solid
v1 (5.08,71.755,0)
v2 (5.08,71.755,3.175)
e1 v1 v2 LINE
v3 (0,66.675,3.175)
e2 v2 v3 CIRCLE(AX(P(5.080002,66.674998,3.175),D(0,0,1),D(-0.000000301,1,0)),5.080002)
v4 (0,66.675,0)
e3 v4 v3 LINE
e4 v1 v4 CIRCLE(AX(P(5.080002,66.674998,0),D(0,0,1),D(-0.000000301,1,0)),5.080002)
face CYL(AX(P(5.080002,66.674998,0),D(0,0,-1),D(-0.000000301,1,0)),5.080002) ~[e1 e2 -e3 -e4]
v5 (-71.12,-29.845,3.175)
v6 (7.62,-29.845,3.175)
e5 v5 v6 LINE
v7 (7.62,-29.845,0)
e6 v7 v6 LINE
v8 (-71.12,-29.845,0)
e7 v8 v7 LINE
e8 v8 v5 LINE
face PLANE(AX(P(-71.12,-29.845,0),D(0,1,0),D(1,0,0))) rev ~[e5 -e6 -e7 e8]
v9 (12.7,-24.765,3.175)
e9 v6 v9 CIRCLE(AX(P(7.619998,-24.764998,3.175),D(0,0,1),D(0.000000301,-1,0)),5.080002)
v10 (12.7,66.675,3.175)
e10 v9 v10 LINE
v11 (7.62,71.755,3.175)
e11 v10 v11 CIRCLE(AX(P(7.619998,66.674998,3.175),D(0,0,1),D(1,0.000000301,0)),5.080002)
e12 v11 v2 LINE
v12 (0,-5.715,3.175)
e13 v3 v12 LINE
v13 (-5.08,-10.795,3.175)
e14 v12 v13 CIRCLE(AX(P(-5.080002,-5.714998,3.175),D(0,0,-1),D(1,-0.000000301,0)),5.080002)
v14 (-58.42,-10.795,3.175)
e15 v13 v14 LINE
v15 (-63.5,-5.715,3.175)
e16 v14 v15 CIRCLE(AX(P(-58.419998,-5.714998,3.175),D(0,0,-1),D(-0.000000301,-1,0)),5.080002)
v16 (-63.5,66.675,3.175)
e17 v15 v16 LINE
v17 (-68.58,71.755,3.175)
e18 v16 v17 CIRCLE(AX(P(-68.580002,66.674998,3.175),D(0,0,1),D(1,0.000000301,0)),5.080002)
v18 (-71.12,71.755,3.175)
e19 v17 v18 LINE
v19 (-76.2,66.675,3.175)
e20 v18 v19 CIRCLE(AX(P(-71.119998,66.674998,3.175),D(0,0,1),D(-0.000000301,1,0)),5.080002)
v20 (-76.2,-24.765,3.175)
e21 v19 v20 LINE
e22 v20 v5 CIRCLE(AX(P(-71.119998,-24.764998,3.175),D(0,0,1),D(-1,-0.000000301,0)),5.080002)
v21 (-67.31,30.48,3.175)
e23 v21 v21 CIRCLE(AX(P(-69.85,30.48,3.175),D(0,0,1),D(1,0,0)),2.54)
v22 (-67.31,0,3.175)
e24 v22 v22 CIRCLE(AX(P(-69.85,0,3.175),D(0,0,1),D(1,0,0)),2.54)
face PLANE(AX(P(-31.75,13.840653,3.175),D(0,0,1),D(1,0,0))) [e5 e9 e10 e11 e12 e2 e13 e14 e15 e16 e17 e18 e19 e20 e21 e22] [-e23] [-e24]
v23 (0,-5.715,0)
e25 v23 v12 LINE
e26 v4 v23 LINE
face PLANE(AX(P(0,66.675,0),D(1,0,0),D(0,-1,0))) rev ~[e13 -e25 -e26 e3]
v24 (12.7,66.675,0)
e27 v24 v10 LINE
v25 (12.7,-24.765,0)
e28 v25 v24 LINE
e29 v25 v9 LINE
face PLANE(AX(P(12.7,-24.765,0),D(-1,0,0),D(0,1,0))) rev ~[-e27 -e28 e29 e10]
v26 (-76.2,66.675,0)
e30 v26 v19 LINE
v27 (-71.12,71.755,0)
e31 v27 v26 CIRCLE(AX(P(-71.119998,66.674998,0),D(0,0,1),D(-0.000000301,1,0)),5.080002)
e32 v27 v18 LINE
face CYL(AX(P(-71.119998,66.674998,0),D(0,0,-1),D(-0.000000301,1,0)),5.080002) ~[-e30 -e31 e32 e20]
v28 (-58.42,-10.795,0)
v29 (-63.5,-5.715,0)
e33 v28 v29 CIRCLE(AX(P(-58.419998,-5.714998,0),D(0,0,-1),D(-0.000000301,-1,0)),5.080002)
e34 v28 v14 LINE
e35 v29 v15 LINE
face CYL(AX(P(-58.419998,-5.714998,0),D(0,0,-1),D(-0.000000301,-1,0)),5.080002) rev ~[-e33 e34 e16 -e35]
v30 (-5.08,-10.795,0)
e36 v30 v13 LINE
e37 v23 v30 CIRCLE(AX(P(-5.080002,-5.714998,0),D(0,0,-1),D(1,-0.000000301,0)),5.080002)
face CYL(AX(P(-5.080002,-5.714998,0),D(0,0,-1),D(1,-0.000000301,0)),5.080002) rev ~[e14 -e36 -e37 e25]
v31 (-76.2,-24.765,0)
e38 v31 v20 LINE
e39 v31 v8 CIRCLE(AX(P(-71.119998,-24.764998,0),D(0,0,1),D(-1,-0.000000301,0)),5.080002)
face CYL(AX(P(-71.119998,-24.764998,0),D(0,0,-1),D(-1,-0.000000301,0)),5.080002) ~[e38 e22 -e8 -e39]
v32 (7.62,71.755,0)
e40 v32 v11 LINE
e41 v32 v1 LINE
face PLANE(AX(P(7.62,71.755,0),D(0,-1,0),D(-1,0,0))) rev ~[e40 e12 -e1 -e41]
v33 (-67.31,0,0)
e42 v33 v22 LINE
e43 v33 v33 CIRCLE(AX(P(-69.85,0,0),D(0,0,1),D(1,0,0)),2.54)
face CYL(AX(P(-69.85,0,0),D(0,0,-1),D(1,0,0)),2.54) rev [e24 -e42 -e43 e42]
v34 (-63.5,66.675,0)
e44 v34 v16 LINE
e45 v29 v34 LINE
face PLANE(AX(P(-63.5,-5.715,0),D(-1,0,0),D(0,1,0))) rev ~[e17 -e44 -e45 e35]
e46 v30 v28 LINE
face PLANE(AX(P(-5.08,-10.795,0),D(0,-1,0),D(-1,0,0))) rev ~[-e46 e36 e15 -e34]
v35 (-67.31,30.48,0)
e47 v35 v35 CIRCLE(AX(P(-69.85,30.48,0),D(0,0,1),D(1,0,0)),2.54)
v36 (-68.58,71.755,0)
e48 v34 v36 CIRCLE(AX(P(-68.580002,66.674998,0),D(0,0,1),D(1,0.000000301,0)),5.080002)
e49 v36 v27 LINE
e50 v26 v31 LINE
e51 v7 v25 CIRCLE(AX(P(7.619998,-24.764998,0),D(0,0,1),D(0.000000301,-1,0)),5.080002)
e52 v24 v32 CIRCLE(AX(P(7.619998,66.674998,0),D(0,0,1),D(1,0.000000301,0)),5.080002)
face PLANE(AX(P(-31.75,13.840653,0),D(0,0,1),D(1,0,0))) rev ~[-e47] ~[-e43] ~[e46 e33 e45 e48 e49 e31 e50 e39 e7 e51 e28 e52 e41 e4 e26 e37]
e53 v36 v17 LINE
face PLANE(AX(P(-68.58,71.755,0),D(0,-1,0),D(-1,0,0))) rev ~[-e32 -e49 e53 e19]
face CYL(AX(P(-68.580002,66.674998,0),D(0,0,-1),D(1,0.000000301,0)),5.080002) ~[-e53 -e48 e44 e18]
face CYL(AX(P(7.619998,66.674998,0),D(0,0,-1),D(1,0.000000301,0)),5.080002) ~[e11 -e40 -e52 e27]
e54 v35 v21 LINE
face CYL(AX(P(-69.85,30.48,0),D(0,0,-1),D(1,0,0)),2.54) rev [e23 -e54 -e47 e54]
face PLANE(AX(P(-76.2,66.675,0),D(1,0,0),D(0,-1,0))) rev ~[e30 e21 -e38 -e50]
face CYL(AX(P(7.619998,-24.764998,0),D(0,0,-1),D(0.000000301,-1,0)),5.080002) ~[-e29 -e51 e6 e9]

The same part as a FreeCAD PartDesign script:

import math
import FreeCAD as App
import Part
import Sketcher
from FreeCAD import Vector
Q = App.Units.Quantity

doc = App.newDocument("Part")
body = doc.addObject("PartDesign::Body", "Body")

# Sketch on XY plane
sketch1 = body.newObject("Sketcher::SketchObject", "Sketch")
sketch1.AttachmentSupport = (doc.getObject("XY_Plane"), [""])
sketch1.MapMode = "FlatFace"
sketch1.addGeometry([
    Part.LineSegment(Vector(-68.58, 71.755, 0), Vector(-71.12, 71.755, 0)),  # 0
    Part.ArcOfCircle(Part.Circle(Vector(-71.119998, 66.674998, 0), Vector(0, 0, 1), 5.080002), math.radians(90.000017), math.radians(179.999983)),  # 1
    Part.LineSegment(Vector(-76.2, 66.675, 0), Vector(-76.2, -24.765, 0)),  # 2
    Part.ArcOfCircle(Part.Circle(Vector(-71.119998, -24.764998, 0), Vector(0, 0, 1), 5.080002), math.radians(-179.999983), math.radians(-90.000017)),  # 3
    Part.LineSegment(Vector(-71.12, -29.845, 0), Vector(7.62, -29.845, 0)),  # 4
    Part.ArcOfCircle(Part.Circle(Vector(7.619998, -24.764998, 0), Vector(0, 0, 1), 5.080002), math.radians(-89.999983), math.radians(-0.000017)),  # 5
    Part.LineSegment(Vector(12.7, -24.765, 0), Vector(12.7, 66.675, 0)),  # 6
    Part.ArcOfCircle(Part.Circle(Vector(7.619998, 66.674998, 0), Vector(0, 0, 1), 5.080002), math.radians(0.000017), math.radians(89.999983)),  # 7
    Part.LineSegment(Vector(7.62, 71.755, 0), Vector(5.08, 71.755, 0)),  # 8
    Part.ArcOfCircle(Part.Circle(Vector(5.080002, 66.674998, 0), Vector(0, 0, 1), 5.080002), math.radians(90.000017), math.radians(179.999983)),  # 9
    Part.LineSegment(Vector(0, 66.675, 0), Vector(0, -5.715, 0)),  # 10
    Part.ArcOfCircle(Part.Circle(Vector(-5.080002, -5.714998, 0), Vector(0, 0, 1), 5.080002), math.radians(-89.999983), math.radians(-0.000017)),  # 11
    Part.LineSegment(Vector(-5.08, -10.795, 0), Vector(-58.42, -10.795, 0)),  # 12
    Part.ArcOfCircle(Part.Circle(Vector(-58.419998, -5.714998, 0), Vector(0, 0, 1), 5.080002), math.radians(-179.999983), math.radians(-90.000017)),  # 13
    Part.LineSegment(Vector(-63.5, -5.715, 0), Vector(-63.5, 66.675, 0)),  # 14
    Part.ArcOfCircle(Part.Circle(Vector(-68.580002, 66.674998, 0), Vector(0, 0, 1), 5.080002), math.radians(0.000017), math.radians(89.999983)),  # 15
    Part.Circle(Vector(-69.85, 0, 0), Vector(0, 0, 1), 2.54),  # 16
    Part.Circle(Vector(-69.85, 30.48, 0), Vector(0, 0, 1), 2.54),  # 17
], False)
sketch1.addConstraint([
    Sketcher.Constraint("Tangent", 0, 2, 1, 1),
    Sketcher.Constraint("Tangent", 1, 2, 2, 1),
    Sketcher.Constraint("Tangent", 2, 2, 3, 1),
    Sketcher.Constraint("Tangent", 3, 2, 4, 1),
    Sketcher.Constraint("Tangent", 4, 2, 5, 1),
    Sketcher.Constraint("Tangent", 5, 2, 6, 1),
    Sketcher.Constraint("Tangent", 6, 2, 7, 1),
    Sketcher.Constraint("Tangent", 7, 2, 8, 1),
    Sketcher.Constraint("Tangent", 8, 2, 9, 1),
    Sketcher.Constraint("Tangent", 9, 2, 10, 1),
    Sketcher.Constraint("Tangent", 10, 2, 11, 2),
    Sketcher.Constraint("Tangent", 11, 1, 12, 1),
    Sketcher.Constraint("Tangent", 12, 2, 13, 2),
    Sketcher.Constraint("Tangent", 13, 1, 14, 1),
    Sketcher.Constraint("Tangent", 14, 2, 15, 1),
    Sketcher.Constraint("Tangent", 15, 2, 0, 1),
    Sketcher.Constraint("Horizontal", 0),
    Sketcher.Constraint("Vertical", 2),
    Sketcher.Constraint("Horizontal", 4),
    Sketcher.Constraint("Vertical", 6),
    Sketcher.Constraint("Horizontal", 8),
    Sketcher.Constraint("Vertical", 10),
    Sketcher.Constraint("Horizontal", 12),
    Sketcher.Constraint("Vertical", 14),
    Sketcher.Constraint("Equal", 1, 3),
    Sketcher.Constraint("Equal", 3, 5),
    Sketcher.Constraint("Equal", 5, 7),
    Sketcher.Constraint("Equal", 7, 9),
    Sketcher.Constraint("Equal", 9, 11),
    Sketcher.Constraint("Equal", 11, 13),
    Sketcher.Constraint("Equal", 13, 15),
    Sketcher.Constraint("Equal", 16, 17),
    Sketcher.Constraint("PointOnObject", 16, 3, -1),
    Sketcher.Constraint("PointOnObject", 9, 2, -2),
    Sketcher.Constraint("Horizontal", 1, 3, 7, 3),
    Sketcher.Constraint("Vertical", 16, 3, 17, 3),
    Sketcher.Constraint("Equal", 0, 8),
    Sketcher.Constraint("Diameter", 16, Q("0.2 in")),
    Sketcher.Constraint("Radius", 1, Q("0.2000001 in")),
    Sketcher.Constraint("DistanceX", 0, 2, 0, 1, Q("0.1 in")),
    Sketcher.Constraint("DistanceX", 4, 1, 4, 2, Q("3.1 in")),
    Sketcher.Constraint("DistanceY", 2, 2, 2, 1, Q("3.6 in")),
    Sketcher.Constraint("DistanceY", 10, 2, 10, 1, Q("2.85 in")),
    Sketcher.Constraint("DistanceY", -1, 1, 17, 3, Q("1.2 in")),
    Sketcher.Constraint("DistanceX", 16, 3, -1, 1, Q("2.75 in")),
    Sketcher.Constraint("DistanceY", -1, 1, 1, 3, Q("2.6249999 in")),
])
pad1 = body.newObject("PartDesign::Pad", "Pad")
pad1.Profile = sketch1
pad1.Length = Q("0.125 in")

doc.recompute()
